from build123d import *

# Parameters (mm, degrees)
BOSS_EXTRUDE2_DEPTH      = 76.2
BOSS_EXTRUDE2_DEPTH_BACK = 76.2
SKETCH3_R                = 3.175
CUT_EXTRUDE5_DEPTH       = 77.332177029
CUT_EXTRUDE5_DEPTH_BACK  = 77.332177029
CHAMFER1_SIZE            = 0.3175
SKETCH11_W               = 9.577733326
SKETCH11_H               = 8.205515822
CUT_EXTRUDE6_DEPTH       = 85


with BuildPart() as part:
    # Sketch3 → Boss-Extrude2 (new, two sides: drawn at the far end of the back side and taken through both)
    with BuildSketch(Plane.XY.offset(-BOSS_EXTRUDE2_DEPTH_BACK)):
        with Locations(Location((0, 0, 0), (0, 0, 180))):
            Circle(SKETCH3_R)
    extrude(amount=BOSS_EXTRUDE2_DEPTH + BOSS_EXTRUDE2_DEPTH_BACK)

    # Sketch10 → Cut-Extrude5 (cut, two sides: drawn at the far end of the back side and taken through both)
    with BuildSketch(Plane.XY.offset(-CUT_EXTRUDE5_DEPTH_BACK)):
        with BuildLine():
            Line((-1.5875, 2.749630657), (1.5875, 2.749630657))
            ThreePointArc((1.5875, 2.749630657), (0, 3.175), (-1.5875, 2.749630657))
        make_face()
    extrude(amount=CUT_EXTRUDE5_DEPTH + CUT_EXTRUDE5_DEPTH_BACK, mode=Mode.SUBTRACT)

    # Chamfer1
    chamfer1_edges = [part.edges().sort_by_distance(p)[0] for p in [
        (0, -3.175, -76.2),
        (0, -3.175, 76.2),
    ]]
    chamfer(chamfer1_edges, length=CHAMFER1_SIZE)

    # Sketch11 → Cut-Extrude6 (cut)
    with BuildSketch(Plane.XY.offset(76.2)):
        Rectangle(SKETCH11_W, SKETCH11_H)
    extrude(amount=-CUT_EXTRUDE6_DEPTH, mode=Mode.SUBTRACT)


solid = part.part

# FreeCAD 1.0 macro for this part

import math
import FreeCAD as App
import Part
import Sketcher
Q = App.Units.Quantity


def edges_at(feature, points):
    """Names of the edges that pass closest to the given points."""
    edges = feature.Shape.Edges
    near = lambda p: min(range(len(edges)), key=lambda i: edges[i].distToShape(Part.Vertex(*p))[0])
    return sorted({f"Edge{near(p) + 1}" for p in points})

doc = App.newDocument("Part")
params = doc.addObject("Spreadsheet::Sheet", "Params")
for row, (alias, value) in enumerate([
    ("sketch1_diameter", "0.25 in"),
    ("pad1_length", "3 in"),
    ("pad1_length2", "3 in"),
    ("sketch2_radius", "0.125 in"),
    ("sketch2_width", "0.125 in"),
    ("chamfer_size", "0.0125 in"),
    ("pocket2_length", "85 mm"),
], start=1):
    params.set(f"A{row}", alias)
    params.set(f"B{row}", "=" + value)
    params.setAlias(f"B{row}", alias)

body = doc.addObject("PartDesign::Body", "Body")

# Sketch on XY plane
sketch1 = doc.addObject("Sketcher::SketchObject", "Sketch")
body.addObject(sketch1)
sketch1.AttachmentSupport = (doc.XY_Plane, [""])
sketch1.MapMode = "FlatFace"
sketch1.addGeometry(Part.Circle(App.Vector(0, 0, 0), App.Vector(0, 0, 1), 3.2), False)
sketch1.addConstraint(Sketcher.Constraint("Coincident", 0, 3, -1, 1))
sketch1.addConstraint(Sketcher.Constraint("Diameter", 0, Q("0.25 in")))
sketch1.setExpression("Constraints[1]", "Params.sketch1_diameter")
pad1 = doc.addObject("PartDesign::Pad", "Pad")
body.addObject(pad1)
pad1.Profile = sketch1
pad1.Type = "TwoLengths"
pad1.setExpression("Length", "Params.pad1_length")
pad1.setExpression("Length2", "Params.pad1_length2")

# Sketch on XY plane
sketch2 = doc.addObject("Sketcher::SketchObject", "Sketch001")
body.addObject(sketch2)
sketch2.AttachmentSupport = (doc.XY_Plane, [""])
sketch2.MapMode = "FlatFace"
sketch2.addGeometry(Part.LineSegment(App.Vector(-1.6, 2.7, 0), App.Vector(1.6, 2.7, 0)), False)
sketch2.addGeometry(Part.ArcOfCircle(Part.Circle(App.Vector(0, 0, 0), App.Vector(0, 0, 1), 3.2), math.radians(60), math.radians(120)), False)
sketch2.addConstraint(Sketcher.Constraint("Coincident", 0, 1, 1, 2))
sketch2.addConstraint(Sketcher.Constraint("Coincident", 1, 1, 0, 2))
sketch2.addConstraint(Sketcher.Constraint("Horizontal", 0))
sketch2.addConstraint(Sketcher.Constraint("Coincident", 1, 3, -1, 1))
sketch2.addConstraint(Sketcher.Constraint("Radius", 1, Q("0.125 in")))
sketch2.addConstraint(Sketcher.Constraint("DistanceX", 0, 1, 0, 2, Q("0.125 in")))
sketch2.setExpression("Constraints[4]", "Params.sketch2_radius")
sketch2.setExpression("Constraints[5]", "Params.sketch2_width")
pocket1 = doc.addObject("PartDesign::Pocket", "Pocket")
body.addObject(pocket1)
pocket1.Profile = sketch2
pocket1.Type = "ThroughAll"
pocket1.Midplane = True
doc.recompute()

chamfer = doc.addObject("PartDesign::Chamfer", "Chamfer")
body.addObject(chamfer)
chamfer.Base = (pocket1, edges_at(pocket1, [(0, -3.175, -76.2), (0, -3.175, 76.2)]))
chamfer.setExpression("Size", "Params.chamfer_size")

# Sketch on XY plane
sketch3 = doc.addObject("Sketcher::SketchObject", "Sketch002")
body.addObject(sketch3)
sketch3.AttachmentSupport = (doc.XY_Plane, [""])
sketch3.MapMode = "FlatFace"
sketch3.AttachmentOffset = App.Placement(App.Vector(0, 0, 3 * 25.4), App.Rotation())
sketch3.addGeometry(Part.LineSegment(App.Vector(-5, 4, 0), App.Vector(-5, -4, 0)), False)
sketch3.addGeometry(Part.LineSegment(App.Vector(-5, -4, 0), App.Vector(5, -4, 0)), False)
sketch3.addGeometry(Part.LineSegment(App.Vector(5, -4, 0), App.Vector(5, 4, 0)), False)
sketch3.addGeometry(Part.LineSegment(App.Vector(5, 4, 0), App.Vector(-5, 4, 0)), False)
sketch3.addConstraint(Sketcher.Constraint("Coincident", 0, 2, 1, 1))
sketch3.addConstraint(Sketcher.Constraint("Coincident", 1, 2, 2, 1))
sketch3.addConstraint(Sketcher.Constraint("Coincident", 2, 2, 3, 1))
sketch3.addConstraint(Sketcher.Constraint("Coincident", 3, 2, 0, 1))
sketch3.addConstraint(Sketcher.Constraint("Vertical", 0))
sketch3.addConstraint(Sketcher.Constraint("Horizontal", 1))
sketch3.addConstraint(Sketcher.Constraint("Vertical", 2))
sketch3.addConstraint(Sketcher.Constraint("Horizontal", 3))
sketch3.addConstraint(Sketcher.Constraint("Symmetric", 0, 2, 2, 2, -1, 1))
sketch3.addConstraint(Sketcher.Constraint("DistanceX", 1, 1, 1, 2, 9.577733))
sketch3.addConstraint(Sketcher.Constraint("DistanceY", 0, 2, 0, 1, 8.205516))
pocket2 = doc.addObject("PartDesign::Pocket", "Pocket001")
body.addObject(pocket2)
pocket2.Profile = sketch3
pocket2.setExpression("Length", "Params.pocket2_length")

doc.recompute()
